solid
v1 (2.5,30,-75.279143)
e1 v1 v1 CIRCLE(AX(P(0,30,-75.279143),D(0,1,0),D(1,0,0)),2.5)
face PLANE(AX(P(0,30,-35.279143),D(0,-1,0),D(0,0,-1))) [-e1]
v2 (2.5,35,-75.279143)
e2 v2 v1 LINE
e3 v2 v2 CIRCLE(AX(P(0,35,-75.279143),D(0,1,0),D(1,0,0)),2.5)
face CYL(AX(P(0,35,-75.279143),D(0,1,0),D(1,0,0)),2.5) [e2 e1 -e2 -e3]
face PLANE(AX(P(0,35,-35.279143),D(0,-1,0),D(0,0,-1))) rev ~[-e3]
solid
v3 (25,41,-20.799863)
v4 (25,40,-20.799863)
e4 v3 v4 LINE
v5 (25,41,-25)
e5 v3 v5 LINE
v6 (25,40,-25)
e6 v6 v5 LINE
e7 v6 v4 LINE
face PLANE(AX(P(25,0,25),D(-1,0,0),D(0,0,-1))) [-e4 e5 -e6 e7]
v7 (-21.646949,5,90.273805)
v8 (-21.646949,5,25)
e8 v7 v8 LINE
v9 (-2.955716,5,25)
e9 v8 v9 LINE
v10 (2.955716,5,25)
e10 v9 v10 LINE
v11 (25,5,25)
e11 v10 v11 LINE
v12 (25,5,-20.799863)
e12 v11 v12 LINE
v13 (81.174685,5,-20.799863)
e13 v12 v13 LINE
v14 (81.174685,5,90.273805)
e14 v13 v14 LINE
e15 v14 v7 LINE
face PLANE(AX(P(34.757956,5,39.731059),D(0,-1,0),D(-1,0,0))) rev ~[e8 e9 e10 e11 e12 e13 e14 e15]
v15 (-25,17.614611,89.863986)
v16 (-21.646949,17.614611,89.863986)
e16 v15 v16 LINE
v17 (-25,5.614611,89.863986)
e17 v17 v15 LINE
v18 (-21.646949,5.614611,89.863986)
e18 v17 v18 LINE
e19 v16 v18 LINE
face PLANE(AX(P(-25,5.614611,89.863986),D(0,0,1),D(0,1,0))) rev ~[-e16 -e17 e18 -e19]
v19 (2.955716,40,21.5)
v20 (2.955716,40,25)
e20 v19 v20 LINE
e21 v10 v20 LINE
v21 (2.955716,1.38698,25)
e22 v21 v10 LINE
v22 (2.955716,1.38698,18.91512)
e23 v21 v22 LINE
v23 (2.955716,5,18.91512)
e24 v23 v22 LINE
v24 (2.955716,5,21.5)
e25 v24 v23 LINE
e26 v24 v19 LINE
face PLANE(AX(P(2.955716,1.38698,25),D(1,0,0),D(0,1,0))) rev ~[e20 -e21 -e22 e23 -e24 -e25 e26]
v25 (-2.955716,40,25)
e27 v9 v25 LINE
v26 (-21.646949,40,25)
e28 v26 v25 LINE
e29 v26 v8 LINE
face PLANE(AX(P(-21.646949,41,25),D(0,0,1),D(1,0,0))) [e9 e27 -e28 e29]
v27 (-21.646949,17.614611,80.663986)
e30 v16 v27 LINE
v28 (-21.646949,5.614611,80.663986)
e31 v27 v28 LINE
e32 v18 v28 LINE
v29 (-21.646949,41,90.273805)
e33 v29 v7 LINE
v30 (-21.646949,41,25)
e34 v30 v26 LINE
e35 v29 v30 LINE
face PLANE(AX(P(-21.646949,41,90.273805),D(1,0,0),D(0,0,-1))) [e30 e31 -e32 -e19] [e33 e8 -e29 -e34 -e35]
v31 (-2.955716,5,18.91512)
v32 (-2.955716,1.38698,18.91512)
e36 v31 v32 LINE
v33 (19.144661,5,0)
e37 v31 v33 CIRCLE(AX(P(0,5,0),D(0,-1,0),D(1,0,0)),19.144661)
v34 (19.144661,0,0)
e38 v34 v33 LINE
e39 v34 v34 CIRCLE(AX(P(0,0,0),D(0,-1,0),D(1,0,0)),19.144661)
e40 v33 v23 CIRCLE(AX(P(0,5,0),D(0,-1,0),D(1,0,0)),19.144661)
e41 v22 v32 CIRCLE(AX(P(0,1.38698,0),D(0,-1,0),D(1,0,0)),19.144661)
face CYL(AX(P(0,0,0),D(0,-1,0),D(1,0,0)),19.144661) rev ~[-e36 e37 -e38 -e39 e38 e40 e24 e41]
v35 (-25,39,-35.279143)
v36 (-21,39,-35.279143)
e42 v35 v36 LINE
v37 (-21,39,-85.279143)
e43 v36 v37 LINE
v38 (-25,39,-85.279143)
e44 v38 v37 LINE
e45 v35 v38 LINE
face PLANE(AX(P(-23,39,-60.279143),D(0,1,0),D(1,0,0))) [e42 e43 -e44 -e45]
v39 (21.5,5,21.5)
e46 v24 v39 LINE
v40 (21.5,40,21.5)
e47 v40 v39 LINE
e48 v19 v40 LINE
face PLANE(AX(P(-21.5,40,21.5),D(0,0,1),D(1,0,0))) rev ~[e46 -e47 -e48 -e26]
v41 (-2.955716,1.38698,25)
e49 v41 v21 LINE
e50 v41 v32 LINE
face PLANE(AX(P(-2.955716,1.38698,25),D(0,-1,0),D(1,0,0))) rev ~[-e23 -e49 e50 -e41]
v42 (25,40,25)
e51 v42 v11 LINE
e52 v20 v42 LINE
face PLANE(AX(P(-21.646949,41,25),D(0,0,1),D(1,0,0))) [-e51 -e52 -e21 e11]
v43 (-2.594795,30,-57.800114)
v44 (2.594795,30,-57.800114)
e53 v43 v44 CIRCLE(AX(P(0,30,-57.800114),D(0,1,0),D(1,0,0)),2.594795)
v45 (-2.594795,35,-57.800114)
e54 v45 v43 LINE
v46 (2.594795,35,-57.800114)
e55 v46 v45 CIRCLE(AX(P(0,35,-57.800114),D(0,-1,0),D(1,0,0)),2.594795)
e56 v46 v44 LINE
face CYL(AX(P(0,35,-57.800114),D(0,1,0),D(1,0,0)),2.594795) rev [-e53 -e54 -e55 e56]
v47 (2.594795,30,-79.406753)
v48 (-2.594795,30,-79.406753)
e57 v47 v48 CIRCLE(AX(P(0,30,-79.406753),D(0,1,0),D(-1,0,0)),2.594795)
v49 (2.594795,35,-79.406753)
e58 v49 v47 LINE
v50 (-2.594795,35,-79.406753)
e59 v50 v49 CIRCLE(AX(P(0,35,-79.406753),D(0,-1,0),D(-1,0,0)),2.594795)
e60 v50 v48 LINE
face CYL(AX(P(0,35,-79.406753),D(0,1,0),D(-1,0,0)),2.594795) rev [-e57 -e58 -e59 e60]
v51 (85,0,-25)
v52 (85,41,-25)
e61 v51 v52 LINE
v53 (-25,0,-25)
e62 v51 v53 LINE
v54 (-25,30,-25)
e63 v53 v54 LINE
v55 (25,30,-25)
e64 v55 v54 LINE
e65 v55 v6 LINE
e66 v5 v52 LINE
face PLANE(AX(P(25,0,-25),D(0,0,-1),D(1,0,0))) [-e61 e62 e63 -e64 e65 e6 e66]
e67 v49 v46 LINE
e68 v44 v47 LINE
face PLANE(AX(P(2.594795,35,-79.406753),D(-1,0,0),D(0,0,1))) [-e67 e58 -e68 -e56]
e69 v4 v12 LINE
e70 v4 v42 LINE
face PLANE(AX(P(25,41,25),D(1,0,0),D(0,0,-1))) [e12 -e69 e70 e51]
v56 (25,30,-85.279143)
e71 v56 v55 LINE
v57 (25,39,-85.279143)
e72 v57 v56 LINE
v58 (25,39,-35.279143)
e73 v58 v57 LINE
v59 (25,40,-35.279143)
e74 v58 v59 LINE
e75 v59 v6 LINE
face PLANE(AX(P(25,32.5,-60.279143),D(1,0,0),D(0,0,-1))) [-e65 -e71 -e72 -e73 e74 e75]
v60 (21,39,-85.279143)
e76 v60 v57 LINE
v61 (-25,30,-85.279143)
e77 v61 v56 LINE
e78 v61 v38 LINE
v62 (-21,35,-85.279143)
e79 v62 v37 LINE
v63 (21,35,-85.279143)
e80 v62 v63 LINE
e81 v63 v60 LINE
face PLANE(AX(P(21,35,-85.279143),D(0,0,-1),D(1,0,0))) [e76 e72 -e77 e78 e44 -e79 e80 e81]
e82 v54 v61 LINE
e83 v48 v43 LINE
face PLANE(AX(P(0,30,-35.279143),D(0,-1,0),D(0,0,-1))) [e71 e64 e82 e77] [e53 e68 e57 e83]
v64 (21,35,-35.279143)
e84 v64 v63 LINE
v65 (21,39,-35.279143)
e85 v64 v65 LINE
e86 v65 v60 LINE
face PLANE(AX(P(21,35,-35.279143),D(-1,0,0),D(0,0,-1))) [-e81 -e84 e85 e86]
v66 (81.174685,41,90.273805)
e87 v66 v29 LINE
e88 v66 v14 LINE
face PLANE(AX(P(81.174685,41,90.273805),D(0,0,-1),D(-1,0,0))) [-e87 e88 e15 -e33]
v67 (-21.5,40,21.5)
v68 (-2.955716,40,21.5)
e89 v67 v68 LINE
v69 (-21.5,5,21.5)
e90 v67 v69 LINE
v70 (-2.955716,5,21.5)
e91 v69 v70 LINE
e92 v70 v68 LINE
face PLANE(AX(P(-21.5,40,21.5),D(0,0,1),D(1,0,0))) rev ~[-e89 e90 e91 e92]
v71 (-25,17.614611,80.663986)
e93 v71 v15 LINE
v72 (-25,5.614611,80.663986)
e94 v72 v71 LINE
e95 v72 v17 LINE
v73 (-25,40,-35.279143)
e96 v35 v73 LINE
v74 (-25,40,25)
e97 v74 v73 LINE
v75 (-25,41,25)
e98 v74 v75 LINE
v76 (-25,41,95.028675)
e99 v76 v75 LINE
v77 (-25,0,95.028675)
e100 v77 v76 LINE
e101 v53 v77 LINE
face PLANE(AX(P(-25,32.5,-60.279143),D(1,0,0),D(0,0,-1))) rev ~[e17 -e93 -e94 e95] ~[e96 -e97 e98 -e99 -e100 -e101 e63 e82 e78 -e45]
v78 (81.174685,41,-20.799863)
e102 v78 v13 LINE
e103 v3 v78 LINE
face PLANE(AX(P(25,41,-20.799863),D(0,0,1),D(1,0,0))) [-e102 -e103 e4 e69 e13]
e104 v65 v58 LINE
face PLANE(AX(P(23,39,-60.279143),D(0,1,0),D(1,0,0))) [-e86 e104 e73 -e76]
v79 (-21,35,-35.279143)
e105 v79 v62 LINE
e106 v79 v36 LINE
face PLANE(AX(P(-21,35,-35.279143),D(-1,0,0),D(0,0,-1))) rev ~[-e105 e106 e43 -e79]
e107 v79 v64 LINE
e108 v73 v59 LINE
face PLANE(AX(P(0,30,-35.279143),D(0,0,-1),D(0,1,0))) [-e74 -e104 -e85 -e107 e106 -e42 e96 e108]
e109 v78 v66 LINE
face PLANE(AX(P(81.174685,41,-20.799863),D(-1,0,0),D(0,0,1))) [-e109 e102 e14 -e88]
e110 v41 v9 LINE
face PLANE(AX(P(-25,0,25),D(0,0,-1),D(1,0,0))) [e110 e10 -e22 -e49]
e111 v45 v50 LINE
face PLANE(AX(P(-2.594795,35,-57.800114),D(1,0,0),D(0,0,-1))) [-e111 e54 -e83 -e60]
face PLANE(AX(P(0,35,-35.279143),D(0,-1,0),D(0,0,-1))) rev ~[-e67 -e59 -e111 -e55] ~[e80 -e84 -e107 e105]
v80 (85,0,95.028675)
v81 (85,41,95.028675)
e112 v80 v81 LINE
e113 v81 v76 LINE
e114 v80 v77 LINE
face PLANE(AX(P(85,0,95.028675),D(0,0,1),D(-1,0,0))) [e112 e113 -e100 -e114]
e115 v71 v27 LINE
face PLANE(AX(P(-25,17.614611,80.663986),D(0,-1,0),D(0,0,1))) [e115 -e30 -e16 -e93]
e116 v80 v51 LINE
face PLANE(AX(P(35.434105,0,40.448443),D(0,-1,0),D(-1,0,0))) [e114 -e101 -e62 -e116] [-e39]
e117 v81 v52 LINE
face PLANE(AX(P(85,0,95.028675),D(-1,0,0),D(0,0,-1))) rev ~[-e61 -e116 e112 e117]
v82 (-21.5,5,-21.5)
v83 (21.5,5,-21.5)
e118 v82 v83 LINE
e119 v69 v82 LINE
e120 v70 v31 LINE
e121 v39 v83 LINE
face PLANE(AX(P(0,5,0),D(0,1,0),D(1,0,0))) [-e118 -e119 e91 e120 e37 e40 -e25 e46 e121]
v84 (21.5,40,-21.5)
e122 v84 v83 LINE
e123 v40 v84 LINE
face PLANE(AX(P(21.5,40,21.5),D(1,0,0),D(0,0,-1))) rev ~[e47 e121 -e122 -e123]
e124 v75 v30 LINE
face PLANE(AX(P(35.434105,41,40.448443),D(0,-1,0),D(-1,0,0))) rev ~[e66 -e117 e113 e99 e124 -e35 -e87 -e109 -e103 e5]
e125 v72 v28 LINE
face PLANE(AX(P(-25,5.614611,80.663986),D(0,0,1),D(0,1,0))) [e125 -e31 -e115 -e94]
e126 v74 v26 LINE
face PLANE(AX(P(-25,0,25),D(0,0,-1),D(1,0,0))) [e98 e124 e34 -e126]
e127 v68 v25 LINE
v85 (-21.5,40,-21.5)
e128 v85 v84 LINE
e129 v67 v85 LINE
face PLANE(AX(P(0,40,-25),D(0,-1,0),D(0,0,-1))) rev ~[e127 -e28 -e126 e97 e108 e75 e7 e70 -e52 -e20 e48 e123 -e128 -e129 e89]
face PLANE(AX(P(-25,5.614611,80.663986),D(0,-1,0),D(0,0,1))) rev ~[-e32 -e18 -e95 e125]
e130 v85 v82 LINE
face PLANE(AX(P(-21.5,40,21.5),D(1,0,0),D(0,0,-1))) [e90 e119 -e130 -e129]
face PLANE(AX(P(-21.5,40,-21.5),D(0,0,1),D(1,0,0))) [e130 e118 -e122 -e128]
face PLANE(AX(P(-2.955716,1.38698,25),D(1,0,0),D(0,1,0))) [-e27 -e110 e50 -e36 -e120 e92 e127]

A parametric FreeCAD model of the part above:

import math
import FreeCAD as App
import Part
import Sketcher
from FreeCAD import Vector
Q = App.Units.Quantity


def add_polygon(sketch, points):
    """Adds a closed chain of lines whose ends are joined by coincident constraints."""
    first, n = sketch.GeometryCount, len(points)
    for a, b in zip(points, points[1:] + points[:1]):
        sketch.addGeometry(Part.LineSegment(App.Vector(*a, 0), App.Vector(*b, 0)), False)
    for i in range(n):
        sketch.addConstraint(Sketcher.Constraint("Coincident", first + i, 2, first + (i + 1) % n, 1))

doc = App.newDocument("Part")
body = doc.addObject("PartDesign::Body", "Body")
body.AllowCompound = True

sketch1 = body.newObject("Sketcher::SketchObject", "Sketch")
sketch1.AttachmentSupport = (doc.getObject("XZ_Plane"), [""])
sketch1.MapMode = "FlatFace"
add_polygon(sketch1, [(-25, -25), (-25, 25), (25, 25), (25, -25)])
sketch1.addConstraint([
    Sketcher.Constraint("Vertical", 0),
    Sketcher.Constraint("Horizontal", 1),
    Sketcher.Constraint("Vertical", 2),
    Sketcher.Constraint("Horizontal", 3),
    Sketcher.Constraint("Symmetric", 0, 2, 2, 2, -1, 1),
    Sketcher.Constraint("Equal", 3, 0),
    Sketcher.Constraint("DistanceX", 1, 1, 1, 2, Q("50 mm")),
])
pad1 = body.newObject("PartDesign::Pad", "Pad")
pad1.Profile = sketch1
pad1.Length = 40
pad1.Reversed = True

sketch2 = body.newObject("Sketcher::SketchObject", "Sketch001")
sketch2.AttachmentSupport = (doc.getObject("XZ_Plane"), [""])
sketch2.MapMode = "FlatFace"
sketch2.AttachmentOffset = App.Placement(Vector(0, 0, -40), App.Rotation())
add_polygon(sketch2, [(-21.5, -21.5), (-21.5, 21.5), (21.5, 21.5), (21.5, -21.5)])
sketch2.addConstraint([
    Sketcher.Constraint("Vertical", 0),
    Sketcher.Constraint("Horizontal", 1),
    Sketcher.Constraint("Vertical", 2),
    Sketcher.Constraint("Horizontal", 3),
    Sketcher.Constraint("Symmetric", 0, 2, 2, 2, -1, 1),
    Sketcher.Constraint("Equal", 3, 0),
    Sketcher.Constraint("DistanceX", 1, 1, 1, 2, Q("43 mm")),
])
pocket1 = body.newObject("PartDesign::Pocket", "Pocket")
pocket1.Profile = sketch2
pocket1.Length = 35
pocket1.Reversed = True

sketch3 = body.newObject("Sketcher::SketchObject", "Sketch002")
sketch3.AttachmentSupport = (doc.getObject("YZ_Plane"), [""])
sketch3.MapMode = "FlatFace"
add_polygon(sketch3, [(40, -25), (30, -25), (30, -35.279143), (40, -35.279143)])
sketch3.addConstraint([
    Sketcher.Constraint("Horizontal", 0),
    Sketcher.Constraint("Vertical", 1),
    Sketcher.Constraint("Horizontal", 2),
    Sketcher.Constraint("Vertical", 3),
    Sketcher.Constraint("DistanceX", 0, 2, 0, 1, Q("10 mm")),
    Sketcher.Constraint("DistanceX", -1, 1, 0, 2, Q("30 mm")),
    Sketcher.Constraint("DistanceY", 0, 2, -1, 1, Q("25 mm")),
    Sketcher.Constraint("DistanceY", 1, 2, 1, 1, Q("10.279143 mm")),
])
pad2 = body.newObject("PartDesign::Pad", "Pad001")
pad2.Profile = sketch3
pad2.Type = "TwoLengths"
pad2.Length = 25
pad2.Length2 = 25

sketch4 = body.newObject("Sketcher::SketchObject", "Sketch003")
sketch4.AttachmentSupport = (doc.getObject("YZ_Plane"), [""])
sketch4.MapMode = "FlatFace"
add_polygon(sketch4, [(35, -35.279143), (30, -35.279143), (30, -85.279143), (35, -85.279143)])
sketch4.addConstraint([
    Sketcher.Constraint("Horizontal", 0),
    Sketcher.Constraint("Vertical", 1),
    Sketcher.Constraint("Horizontal", 2),
    Sketcher.Constraint("Vertical", 3),
    Sketcher.Constraint("DistanceX", 0, 2, 0, 1, Q("5 mm")),
    Sketcher.Constraint("DistanceY", 1, 2, 1, 1, Q("50 mm")),
    Sketcher.Constraint("DistanceX", -1, 1, 0, 2, Q("30 mm")),
    Sketcher.Constraint("DistanceY", 0, 2, -1, 1, Q("35.279143 mm")),
])
pad3 = body.newObject("PartDesign::Pad", "Pad002")
pad3.Profile = sketch4
pad3.Type = "TwoLengths"
pad3.Length = 25
pad3.Length2 = 25

sketch5 = body.newObject("Sketcher::SketchObject", "Sketch004")
sketch5.AttachmentSupport = (doc.getObject("XZ_Plane"), [""])
sketch5.MapMode = "FlatFace"
sketch5.AttachmentOffset = App.Placement(Vector(0, 0, -35), App.Rotation())
add_polygon(sketch5, [(21, -85.279143), (21, -35.279143), (25, -35.279143), (25, -85.279143)])
add_polygon(sketch5, [(-25, -85.279143), (-25, -35.279143), (-21, -35.279143), (-21, -85.279143)])
sketch5.addConstraint([
    Sketcher.Constraint("Vertical", 0),
    Sketcher.Constraint("Horizontal", 1),
    Sketcher.Constraint("Vertical", 2),
    Sketcher.Constraint("Horizontal", 3),
    Sketcher.Constraint("Vertical", 4),
    Sketcher.Constraint("Horizontal", 5),
    Sketcher.Constraint("Vertical", 6),
    Sketcher.Constraint("Horizontal", 7),
    Sketcher.Constraint("Symmetric", 1, 2, 4, 2, -2),
    Sketcher.Constraint("Symmetric", 3, 2, 6, 2, -2),
    Sketcher.Constraint("DistanceX", 1, 1, 1, 2, Q("4 mm")),
    Sketcher.Constraint("DistanceY", 0, 1, 0, 2, Q("50 mm")),
    Sketcher.Constraint("DistanceX", -1, 1, 0, 2, Q("21 mm")),
    Sketcher.Constraint("DistanceY", 0, 2, -1, 1, Q("35.279143 mm")),
])
pad4 = body.newObject("PartDesign::Pad", "Pad003")
pad4.Profile = sketch5
pad4.Length = 4
pad4.Reversed = True

sketch6 = body.newObject("Sketcher::SketchObject", "Sketch005")
sketch6.AttachmentSupport = (doc.getObject("XZ_Plane"), [""])
sketch6.MapMode = "FlatFace"
sketch6.AttachmentOffset = App.Placement(Vector(0, 0, -35), App.Rotation())
sketch6.addGeometry([
    Part.LineSegment(Vector(2.594795, -57.800114, 0), Vector(2.594795, -79.406753, 0)),
    Part.ArcOfCircle(Part.Circle(Vector(0, -79.406753, 0), Vector(0, 0, 1), 2.594795), math.radians(180), math.radians(360)),
    Part.LineSegment(Vector(-2.594795, -79.406753, 0), Vector(-2.594795, -57.800114, 0)),
    Part.ArcOfCircle(Part.Circle(Vector(0, -57.800114, 0), Vector(0, 0, 1), 2.594795), math.radians(0), math.radians(180)),
    Part.Circle(Vector(0, -75.279143, 0), Vector(0, 0, 1), 2.5),
], False)
sketch6.addConstraint([
    Sketcher.Constraint("Tangent", 0, 2, 1, 2),
    Sketcher.Constraint("Tangent", 1, 1, 2, 1),
    Sketcher.Constraint("Tangent", 2, 2, 3, 2),
    Sketcher.Constraint("Tangent", 3, 1, 0, 1),
    Sketcher.Constraint("Vertical", 0),
    Sketcher.Constraint("Vertical", 2),
    Sketcher.Constraint("PointOnObject", 1, 3, -2),
    Sketcher.Constraint("PointOnObject", 4, 3, -2),
    Sketcher.Constraint("Diameter", 4, Q("5 mm")),
    Sketcher.Constraint("Radius", 1, Q("2.594795 mm")),
    Sketcher.Constraint("DistanceY", 0, 2, 0, 1, Q("21.606639 mm")),
    Sketcher.Constraint("DistanceY", 1, 3, 4, 3, Q("4.12761 mm")),
    Sketcher.Constraint("DistanceY", 1, 3, -1, 1, Q("79.406753 mm")),
])
pocket2 = body.newObject("PartDesign::Pocket", "Pocket001")
pocket2.Profile = sketch6
pocket2.Type = "ThroughAll"
pocket2.Midplane = True

sketch7 = body.newObject("Sketcher::SketchObject", "Sketch006")
sketch7.AttachmentSupport = (doc.getObject("XY_Plane"), [""])
sketch7.MapMode = "FlatFace"
sketch7.AttachmentOffset = App.Placement(Vector(0, 0, 25), App.Rotation())
add_polygon(sketch7, [(-2.955716, 40.407449), (-2.955716, 1.38698), (2.955716, 1.38698), (2.955716, 40.407449)])
sketch7.addConstraint([
    Sketcher.Constraint("Vertical", 0),
    Sketcher.Constraint("Horizontal", 1),
    Sketcher.Constraint("Vertical", 2),
    Sketcher.Constraint("Horizontal", 3),
    Sketcher.Constraint("DistanceY", 0, 2, 0, 1, Q("39.020469 mm")),
    Sketcher.Constraint("DistanceX", 1, 1, 1, 2, Q("5.911433 mm")),
    Sketcher.Constraint("DistanceY", -1, 1, 0, 2, Q("1.38698 mm")),
    Sketcher.Constraint("DistanceX", 0, 2, -1, 1, Q("2.955716 mm")),
])
pocket3 = body.newObject("PartDesign::Pocket", "Pocket002")
pocket3.Profile = sketch7
pocket3.Length = 10

sketch8 = body.newObject("Sketcher::SketchObject", "Sketch007")
sketch8.AttachmentSupport = (doc.getObject("XZ_Plane"), [""])
sketch8.MapMode = "FlatFace"
sketch8.addGeometry(Part.Circle(Vector(0, 0, 0), Vector(0, 0, 1), 19.144661), False)
sketch8.addConstraint([
    Sketcher.Constraint("Coincident", 0, 3, -1, 1),
    Sketcher.Constraint("Diameter", 0, Q("38.289321 mm")),
])
pocket4 = body.newObject("PartDesign::Pocket", "Pocket003")
pocket4.Profile = sketch8
pocket4.Length = 10

sketch9 = body.newObject("Sketcher::SketchObject", "Sketch008")
sketch9.AttachmentSupport = (doc.getObject("XZ_Plane"), [""])
sketch9.MapMode = "FlatFace"
add_polygon(sketch9, [(25, -25), (25, 25), (-25, 25), (-25, 95.028675), (85, 95.028675), (85, -25)])
sketch9.addConstraint([
    Sketcher.Constraint("Vertical", 0),
    Sketcher.Constraint("Horizontal", 1),
    Sketcher.Constraint("Vertical", 2),
    Sketcher.Constraint("Horizontal", 3),
    Sketcher.Constraint("Vertical", 4),
    Sketcher.Constraint("Horizontal", 5),
    Sketcher.Constraint("Symmetric", 1, 2, 5, 2, -1, 1),
    Sketcher.Constraint("Equal", 1, 0),
    Sketcher.Constraint("DistanceX", 1, 2, 1, 1, Q("50 mm")),
    Sketcher.Constraint("DistanceX", 3, 1, 3, 2, Q("110 mm")),
    Sketcher.Constraint("DistanceY", 2, 1, 2, 2, Q("70.028675 mm")),
])
pad5 = body.newObject("PartDesign::Pad", "Pad004")
pad5.Profile = sketch9
pad5.Length = 41
pad5.Reversed = True

sketch10 = body.newObject("Sketcher::SketchObject", "Sketch009")
sketch10.AttachmentSupport = (doc.getObject("XZ_Plane"), [""])
sketch10.MapMode = "FlatFace"
sketch10.AttachmentOffset = App.Placement(Vector(0, 0, -41), App.Rotation())
add_polygon(sketch10, [(81.174685, -20.799863), (25, -20.799863), (25, 25), (-21.646949, 25), (-21.646949, 90.273805), (81.174685, 90.273805)])
sketch10.addConstraint([
    Sketcher.Constraint("Horizontal", 0),
    Sketcher.Constraint("Vertical", 1),
    Sketcher.Constraint("Horizontal", 2),
    Sketcher.Constraint("Vertical", 3),
    Sketcher.Constraint("Horizontal", 4),
    Sketcher.Constraint("Vertical", 5),
    Sketcher.Constraint("DistanceX", -1, 1, 0, 2, Q("25 mm")),
    Sketcher.Constraint("DistanceY", -1, 1, 1, 2, Q("25 mm")),
    Sketcher.Constraint("DistanceX", 2, 2, 2, 1, Q("46.646949 mm")),
    Sketcher.Constraint("DistanceY", 5, 2, 5, 1, Q("111.073668 mm")),
    Sketcher.Constraint("DistanceX", 0, 2, 0, 1, Q("56.174685 mm")),
    Sketcher.Constraint("DistanceY", 1, 1, 1, 2, Q("45.799863 mm")),
])
pocket5 = body.newObject("PartDesign::Pocket", "Pocket004")
pocket5.Profile = sketch10
pocket5.Length = 36
pocket5.Reversed = True

sketch11 = body.newObject("Sketcher::SketchObject", "Sketch010")
sketch11.AttachmentSupport = (doc.getObject("YZ_Plane"), [""])
sketch11.MapMode = "FlatFace"
sketch11.AttachmentOffset = App.Placement(Vector(0, 0, -25), App.Rotation())
add_polygon(sketch11, [(17.614611, 80.663986), (5.614611, 80.663986), (5.614611, 89.863986), (17.614611, 89.863986)])
sketch11.addConstraint([
    Sketcher.Constraint("Horizontal", 0),
    Sketcher.Constraint("Vertical", 1),
    Sketcher.Constraint("Horizontal", 2),
    Sketcher.Constraint("Vertical", 3),
    Sketcher.Constraint("DistanceX", 0, 2, 0, 1, Q("12 mm")),
    Sketcher.Constraint("DistanceY", 1, 1, 1, 2, Q("9.2 mm")),
    Sketcher.Constraint("DistanceX", -1, 1, 0, 2, Q("5.614611 mm")),
    Sketcher.Constraint("DistanceY", -1, 1, 0, 2, Q("80.663986 mm")),
])
pocket6 = body.newObject("PartDesign::Pocket", "Pocket005")
pocket6.Profile = sketch11
pocket6.Length = 36
pocket6.Reversed = True

doc.recompute()
